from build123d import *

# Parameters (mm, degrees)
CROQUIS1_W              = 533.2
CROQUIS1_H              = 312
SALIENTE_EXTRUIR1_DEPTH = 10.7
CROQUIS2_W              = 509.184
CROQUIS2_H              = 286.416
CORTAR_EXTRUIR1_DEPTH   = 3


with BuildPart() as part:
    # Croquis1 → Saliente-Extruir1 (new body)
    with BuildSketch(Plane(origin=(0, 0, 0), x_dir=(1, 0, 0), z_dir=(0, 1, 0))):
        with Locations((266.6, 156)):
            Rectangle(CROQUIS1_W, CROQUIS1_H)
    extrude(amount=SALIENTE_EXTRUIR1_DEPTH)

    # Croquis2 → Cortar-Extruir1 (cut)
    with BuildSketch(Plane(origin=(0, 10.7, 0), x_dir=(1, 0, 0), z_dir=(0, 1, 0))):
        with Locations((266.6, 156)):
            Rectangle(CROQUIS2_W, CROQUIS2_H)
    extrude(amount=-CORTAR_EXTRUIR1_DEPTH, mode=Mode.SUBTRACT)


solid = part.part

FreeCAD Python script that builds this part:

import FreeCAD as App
import Part
import Sketcher
from FreeCAD import Vector

doc = App.newDocument("Part")
body = doc.addObject("PartDesign::Body", "Body")

sketch1 = body.newObject("Sketcher::SketchObject", "Sketch")
sketch1.AttachmentSupport = (doc.getObject("XZ_Plane"), [""])
sketch1.MapMode = "FlatFace"
sketch1.addGeometry([
    Part.LineSegment(Vector(0, -312, 0), Vector(0, 0, 0)),
    Part.LineSegment(Vector(0, 0, 0), Vector(533, 0, 0)),
    Part.LineSegment(Vector(533, 0, 0), Vector(533, -312, 0)),
    Part.LineSegment(Vector(533, -312, 0), Vector(0, -312, 0)),
], False)
sketch1.addConstraint([
    Sketcher.Constraint("Coincident", 0, 2, 1, 1),
    Sketcher.Constraint("Coincident", 1, 2, 2, 1),
    Sketcher.Constraint("Coincident", 2, 2, 3, 1),
    Sketcher.Constraint("Coincident", 3, 2, 0, 1),
    Sketcher.Constraint("Vertical", 0),
    Sketcher.Constraint("Horizontal", 1),
    Sketcher.Constraint("Vertical", 2),
    Sketcher.Constraint("Horizontal", 3),
    Sketcher.Constraint("Coincident", 0, 2, -1, 1),
    Sketcher.Constraint("DistanceY", 0, 1, 0, 2, 312.0),
    Sketcher.Constraint("DistanceX", 1, 1, 1, 2, 533.2),
])
pad1 = body.newObject("PartDesign::Pad", "Pad")
pad1.Profile = sketch1
pad1.Length = 10.7
pad1.Reversed = True

sketch2 = body.newObject("Sketcher::SketchObject", "Sketch001")
sketch2.AttachmentSupport = (doc.getObject("XZ_Plane"), [""])
sketch2.MapMode = "FlatFace"
sketch2.AttachmentOffset = App.Placement(Vector(0, 0, -10.7), App.Rotation())
sketch2.addGeometry([
    Part.LineSegment(Vector(12, -299, 0), Vector(12, -13, 0)),
    Part.LineSegment(Vector(12, -13, 0), Vector(521, -13, 0)),
    Part.LineSegment(Vector(521, -13, 0), Vector(521, -299, 0)),
    Part.LineSegment(Vector(521, -299, 0), Vector(12, -299, 0)),
], False)
sketch2.addConstraint([
    Sketcher.Constraint("Coincident", 0, 2, 1, 1),
    Sketcher.Constraint("Coincident", 1, 2, 2, 1),
    Sketcher.Constraint("Coincident", 2, 2, 3, 1),
    Sketcher.Constraint("Coincident", 3, 2, 0, 1),
    Sketcher.Constraint("Vertical", 0),
    Sketcher.Constraint("Horizontal", 1),
    Sketcher.Constraint("Vertical", 2),
    Sketcher.Constraint("Horizontal", 3),
    Sketcher.Constraint("DistanceX", 1, 1, 1, 2, 509.184),
    Sketcher.Constraint("DistanceY", 0, 1, 0, 2, 286.416),
    Sketcher.Constraint("DistanceX", -1, 1, 0, 2, 12.008),
    Sketcher.Constraint("DistanceY", 0, 2, -1, 1, 12.792),
])
pocket1 = body.newObject("PartDesign::Pocket", "Pocket")
pocket1.Profile = sketch2
pocket1.Length = 3
pocket1.Reversed = True

doc.recompute()
